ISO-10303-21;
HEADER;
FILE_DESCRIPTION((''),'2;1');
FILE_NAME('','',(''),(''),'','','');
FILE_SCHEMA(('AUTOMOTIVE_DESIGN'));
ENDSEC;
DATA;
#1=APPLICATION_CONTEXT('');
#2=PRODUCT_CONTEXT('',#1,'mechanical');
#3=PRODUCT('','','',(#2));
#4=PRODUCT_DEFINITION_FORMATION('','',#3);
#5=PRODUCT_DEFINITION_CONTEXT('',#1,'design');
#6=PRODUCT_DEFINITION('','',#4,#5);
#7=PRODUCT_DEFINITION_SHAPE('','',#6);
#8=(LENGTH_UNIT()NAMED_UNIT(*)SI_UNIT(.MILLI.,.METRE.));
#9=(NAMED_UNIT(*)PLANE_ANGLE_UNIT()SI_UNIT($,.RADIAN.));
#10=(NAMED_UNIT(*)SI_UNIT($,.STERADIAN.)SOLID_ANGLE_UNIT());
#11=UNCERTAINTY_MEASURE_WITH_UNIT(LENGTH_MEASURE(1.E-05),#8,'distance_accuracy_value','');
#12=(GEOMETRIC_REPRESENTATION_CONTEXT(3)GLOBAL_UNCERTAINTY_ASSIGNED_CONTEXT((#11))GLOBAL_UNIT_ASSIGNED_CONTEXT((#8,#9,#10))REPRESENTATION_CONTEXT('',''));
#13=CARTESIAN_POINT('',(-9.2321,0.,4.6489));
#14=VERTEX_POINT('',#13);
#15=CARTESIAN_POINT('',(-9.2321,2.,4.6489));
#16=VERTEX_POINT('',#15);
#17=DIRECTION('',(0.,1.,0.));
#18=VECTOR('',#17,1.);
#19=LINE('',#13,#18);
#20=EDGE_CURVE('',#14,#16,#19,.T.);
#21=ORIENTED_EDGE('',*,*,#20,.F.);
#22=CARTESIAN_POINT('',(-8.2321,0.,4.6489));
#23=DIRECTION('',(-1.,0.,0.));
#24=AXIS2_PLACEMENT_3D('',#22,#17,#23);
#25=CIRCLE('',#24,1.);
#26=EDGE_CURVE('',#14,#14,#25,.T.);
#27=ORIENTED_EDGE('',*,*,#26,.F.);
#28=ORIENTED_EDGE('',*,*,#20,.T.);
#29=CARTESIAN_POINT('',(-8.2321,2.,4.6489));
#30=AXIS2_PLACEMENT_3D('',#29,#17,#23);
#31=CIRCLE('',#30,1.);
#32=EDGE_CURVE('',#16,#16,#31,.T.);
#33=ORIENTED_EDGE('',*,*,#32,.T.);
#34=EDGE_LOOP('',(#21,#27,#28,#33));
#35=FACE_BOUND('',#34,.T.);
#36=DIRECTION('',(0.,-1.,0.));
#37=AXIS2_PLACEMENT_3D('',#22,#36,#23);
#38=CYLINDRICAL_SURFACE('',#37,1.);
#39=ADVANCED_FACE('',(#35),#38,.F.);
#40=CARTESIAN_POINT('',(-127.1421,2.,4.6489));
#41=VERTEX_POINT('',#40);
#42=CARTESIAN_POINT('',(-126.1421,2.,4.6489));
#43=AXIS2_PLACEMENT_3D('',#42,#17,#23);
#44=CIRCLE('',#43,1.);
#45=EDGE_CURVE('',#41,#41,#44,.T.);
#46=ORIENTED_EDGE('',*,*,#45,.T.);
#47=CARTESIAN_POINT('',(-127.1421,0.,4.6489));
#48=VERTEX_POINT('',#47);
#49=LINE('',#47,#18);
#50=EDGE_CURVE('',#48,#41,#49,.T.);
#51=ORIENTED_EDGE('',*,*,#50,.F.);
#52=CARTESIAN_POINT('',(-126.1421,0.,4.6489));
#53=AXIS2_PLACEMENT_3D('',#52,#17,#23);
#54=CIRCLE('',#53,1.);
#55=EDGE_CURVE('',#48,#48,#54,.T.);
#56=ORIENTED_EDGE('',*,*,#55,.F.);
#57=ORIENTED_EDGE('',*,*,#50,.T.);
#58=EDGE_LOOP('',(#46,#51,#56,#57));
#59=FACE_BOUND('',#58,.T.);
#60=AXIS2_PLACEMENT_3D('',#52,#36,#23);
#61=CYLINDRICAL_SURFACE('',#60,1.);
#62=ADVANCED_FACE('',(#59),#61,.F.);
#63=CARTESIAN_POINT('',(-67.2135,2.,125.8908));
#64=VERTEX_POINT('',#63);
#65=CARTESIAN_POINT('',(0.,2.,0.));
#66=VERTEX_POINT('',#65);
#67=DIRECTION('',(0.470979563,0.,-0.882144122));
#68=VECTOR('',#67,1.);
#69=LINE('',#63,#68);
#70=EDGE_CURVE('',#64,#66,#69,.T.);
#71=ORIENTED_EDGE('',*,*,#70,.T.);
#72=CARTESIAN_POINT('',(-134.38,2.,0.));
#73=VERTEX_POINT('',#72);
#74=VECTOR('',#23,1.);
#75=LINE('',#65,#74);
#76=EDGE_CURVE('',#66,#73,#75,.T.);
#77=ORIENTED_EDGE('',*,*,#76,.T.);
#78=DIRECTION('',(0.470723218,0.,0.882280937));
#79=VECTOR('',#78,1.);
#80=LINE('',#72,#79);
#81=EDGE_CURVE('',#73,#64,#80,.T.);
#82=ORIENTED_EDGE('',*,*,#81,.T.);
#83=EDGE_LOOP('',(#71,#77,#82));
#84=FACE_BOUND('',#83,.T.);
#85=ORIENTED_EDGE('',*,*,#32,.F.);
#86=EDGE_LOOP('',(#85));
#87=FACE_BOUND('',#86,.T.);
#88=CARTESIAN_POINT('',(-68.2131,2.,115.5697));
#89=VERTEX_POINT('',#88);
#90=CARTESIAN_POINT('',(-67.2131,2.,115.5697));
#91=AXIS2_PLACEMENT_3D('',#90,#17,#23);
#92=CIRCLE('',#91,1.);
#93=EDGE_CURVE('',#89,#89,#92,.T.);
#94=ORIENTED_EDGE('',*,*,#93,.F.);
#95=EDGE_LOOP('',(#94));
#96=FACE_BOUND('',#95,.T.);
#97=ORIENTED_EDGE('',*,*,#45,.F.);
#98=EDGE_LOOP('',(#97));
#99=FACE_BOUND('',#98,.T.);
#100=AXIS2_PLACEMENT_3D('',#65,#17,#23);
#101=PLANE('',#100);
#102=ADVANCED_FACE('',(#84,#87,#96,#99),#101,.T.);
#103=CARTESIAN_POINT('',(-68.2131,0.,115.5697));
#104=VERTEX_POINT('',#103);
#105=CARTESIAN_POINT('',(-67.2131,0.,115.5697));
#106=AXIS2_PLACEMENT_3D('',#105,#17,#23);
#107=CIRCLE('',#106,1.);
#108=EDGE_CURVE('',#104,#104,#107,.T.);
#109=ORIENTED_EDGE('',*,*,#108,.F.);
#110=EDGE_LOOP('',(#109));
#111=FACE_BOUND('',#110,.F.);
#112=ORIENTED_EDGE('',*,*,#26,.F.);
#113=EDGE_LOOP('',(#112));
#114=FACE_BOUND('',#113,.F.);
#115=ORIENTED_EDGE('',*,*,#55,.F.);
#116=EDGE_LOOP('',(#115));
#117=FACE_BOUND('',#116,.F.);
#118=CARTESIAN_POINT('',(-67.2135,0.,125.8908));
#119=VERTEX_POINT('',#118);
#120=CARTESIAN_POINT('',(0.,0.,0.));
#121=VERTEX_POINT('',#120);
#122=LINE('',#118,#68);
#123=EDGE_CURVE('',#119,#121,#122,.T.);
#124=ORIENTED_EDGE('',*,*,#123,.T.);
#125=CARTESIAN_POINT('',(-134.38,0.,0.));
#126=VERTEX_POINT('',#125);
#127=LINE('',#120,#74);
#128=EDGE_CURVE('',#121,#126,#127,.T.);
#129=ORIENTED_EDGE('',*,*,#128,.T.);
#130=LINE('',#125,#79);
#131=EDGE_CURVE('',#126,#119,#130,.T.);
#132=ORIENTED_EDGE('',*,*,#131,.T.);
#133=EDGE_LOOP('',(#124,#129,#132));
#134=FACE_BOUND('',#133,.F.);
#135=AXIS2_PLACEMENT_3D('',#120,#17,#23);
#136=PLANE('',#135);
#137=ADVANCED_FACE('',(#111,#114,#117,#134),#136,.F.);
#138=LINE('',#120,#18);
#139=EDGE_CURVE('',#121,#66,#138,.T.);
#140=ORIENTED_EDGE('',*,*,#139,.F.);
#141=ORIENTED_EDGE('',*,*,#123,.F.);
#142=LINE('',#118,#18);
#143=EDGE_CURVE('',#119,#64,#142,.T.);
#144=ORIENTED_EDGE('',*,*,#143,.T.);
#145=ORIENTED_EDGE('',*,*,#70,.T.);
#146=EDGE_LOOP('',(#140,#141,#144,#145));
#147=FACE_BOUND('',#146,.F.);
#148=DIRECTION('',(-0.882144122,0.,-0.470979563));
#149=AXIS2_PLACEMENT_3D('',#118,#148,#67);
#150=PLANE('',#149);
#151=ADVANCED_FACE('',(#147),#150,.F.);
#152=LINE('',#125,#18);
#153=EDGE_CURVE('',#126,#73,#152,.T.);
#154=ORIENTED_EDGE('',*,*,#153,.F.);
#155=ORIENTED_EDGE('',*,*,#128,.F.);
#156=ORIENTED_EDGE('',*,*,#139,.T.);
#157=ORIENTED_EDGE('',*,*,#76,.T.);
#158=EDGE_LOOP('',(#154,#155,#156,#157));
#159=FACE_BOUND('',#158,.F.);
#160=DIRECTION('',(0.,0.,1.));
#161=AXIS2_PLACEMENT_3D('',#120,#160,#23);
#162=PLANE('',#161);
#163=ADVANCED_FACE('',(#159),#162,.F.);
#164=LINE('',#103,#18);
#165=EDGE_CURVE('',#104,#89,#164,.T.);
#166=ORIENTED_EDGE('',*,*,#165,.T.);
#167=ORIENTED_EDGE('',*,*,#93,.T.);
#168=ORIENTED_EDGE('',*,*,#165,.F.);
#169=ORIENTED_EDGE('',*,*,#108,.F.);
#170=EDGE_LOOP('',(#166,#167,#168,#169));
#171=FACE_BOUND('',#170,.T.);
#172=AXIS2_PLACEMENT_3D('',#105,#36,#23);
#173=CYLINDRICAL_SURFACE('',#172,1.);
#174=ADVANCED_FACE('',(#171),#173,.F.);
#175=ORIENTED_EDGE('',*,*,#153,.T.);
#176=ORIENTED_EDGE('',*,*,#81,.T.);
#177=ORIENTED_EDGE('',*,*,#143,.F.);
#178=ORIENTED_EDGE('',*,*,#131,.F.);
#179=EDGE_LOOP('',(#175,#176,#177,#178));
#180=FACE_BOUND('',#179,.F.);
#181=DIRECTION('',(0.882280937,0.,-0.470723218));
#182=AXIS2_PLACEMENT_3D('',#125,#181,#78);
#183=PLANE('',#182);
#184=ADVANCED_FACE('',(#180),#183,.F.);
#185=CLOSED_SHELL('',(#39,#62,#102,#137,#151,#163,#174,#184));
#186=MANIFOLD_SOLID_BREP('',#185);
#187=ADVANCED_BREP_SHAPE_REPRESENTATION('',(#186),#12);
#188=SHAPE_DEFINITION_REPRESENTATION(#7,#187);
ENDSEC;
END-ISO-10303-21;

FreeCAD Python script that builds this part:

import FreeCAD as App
import Part
import Sketcher
from FreeCAD import Vector
Q = App.Units.Quantity

doc = App.newDocument("Part")
body = doc.addObject("PartDesign::Body", "Body")

sketch1 = body.newObject("Sketcher::SketchObject", "Sketch")
sketch1.AttachmentSupport = (doc.getObject("XZ_Plane"), [""])
sketch1.MapMode = "FlatFace"
sketch1.addGeometry(Part.LineSegment(Vector(-67.2, 125.9, 0), Vector(0, 0, 0)), False)
sketch1.addGeometry(Part.LineSegment(Vector(0, 0, 0), Vector(-134.4, 0, 0)), False)
sketch1.addGeometry(Part.LineSegment(Vector(-134.4, 0, 0), Vector(-67.2, 125.9, 0)), False)
sketch1.addGeometry(Part.Circle(Vector(-8.2, 4.6, 0), Vector(0, 0, 1), 1), False)
sketch1.addGeometry(Part.Circle(Vector(-126.1, 4.6, 0), Vector(0, 0, 1), 1), False)
sketch1.addGeometry(Part.Circle(Vector(-67.2, 115.6, 0), Vector(0, 0, 1), 1), False)
sketch1.addConstraint(Sketcher.Constraint("Coincident", 0, 2, 1, 1))
sketch1.addConstraint(Sketcher.Constraint("Coincident", 1, 2, 2, 1))
sketch1.addConstraint(Sketcher.Constraint("Coincident", 2, 2, 0, 1))
sketch1.addConstraint(Sketcher.Constraint("Horizontal", 1))
sketch1.addConstraint(Sketcher.Constraint("Coincident", 0, 2, -1, 1))
sketch1.addConstraint(Sketcher.Constraint("Equal", 3, 4))
sketch1.addConstraint(Sketcher.Constraint("Equal", 4, 5))
sketch1.addConstraint(Sketcher.Constraint("Horizontal", 3, 3, 4, 3))
sketch1.addConstraint(Sketcher.Constraint("Diameter", 3, Q("2 mm")))
sketch1.addConstraint(Sketcher.Constraint("DistanceX", 1, 2, 1, 1, Q("134.38 mm")))
sketch1.addConstraint(Sketcher.Constraint("Distance", 0, Q("142.71 mm")))
sketch1.addConstraint(Sketcher.Constraint("DistanceX", 4, 3, 3, 3, Q("117.91 mm")))
sketch1.addConstraint(Sketcher.Constraint("Distance", 2, Q("142.688 mm")))
sketch1.addConstraint(Sketcher.Constraint("DistanceX", 3, 3, -1, 1, Q("8.232 mm")))
sketch1.addConstraint(Sketcher.Constraint("DistanceY", -1, 1, 3, 3, Q("4.649 mm")))
sketch1.addConstraint(Sketcher.Constraint("DistanceX", 5, 3, -1, 1, Q("67.213 mm")))
sketch1.addConstraint(Sketcher.Constraint("DistanceY", 5, 3, 2, 2, Q("10.321 mm")))
pad1 = body.newObject("PartDesign::Pad", "Pad")
pad1.Profile = sketch1
pad1.Length = 2
pad1.Reversed = True

doc.recompute()
